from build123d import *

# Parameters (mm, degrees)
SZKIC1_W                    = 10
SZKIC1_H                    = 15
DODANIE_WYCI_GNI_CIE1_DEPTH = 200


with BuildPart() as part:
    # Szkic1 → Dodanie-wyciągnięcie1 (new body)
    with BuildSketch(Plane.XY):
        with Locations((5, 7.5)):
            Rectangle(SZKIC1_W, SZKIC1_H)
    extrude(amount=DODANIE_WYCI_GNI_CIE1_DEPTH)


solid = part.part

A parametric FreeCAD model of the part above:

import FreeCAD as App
import Part
import Sketcher

V = App.Vector
Q = App.Units.Quantity

doc = App.newDocument("Part")
body = doc.addObject("PartDesign::Body", "Body")

sketch1 = body.newObject("Sketcher::SketchObject", "Sketch")
sketch1.AttachmentSupport = (doc.getObject("XY_Plane"), [""])
sketch1.MapMode = "FlatFace"
sketch1.addGeometry(Part.LineSegment(V(0, 15, 0), V(0, 0, 0)), False)
sketch1.addGeometry(Part.LineSegment(V(0, 0, 0), V(10, 0, 0)), False)
sketch1.addGeometry(Part.LineSegment(V(10, 0, 0), V(10, 15, 0)), False)
sketch1.addGeometry(Part.LineSegment(V(10, 15, 0), V(0, 15, 0)), False)
sketch1.addConstraint(Sketcher.Constraint("Coincident", 0, 2, 1, 1))
sketch1.addConstraint(Sketcher.Constraint("Coincident", 1, 2, 2, 1))
sketch1.addConstraint(Sketcher.Constraint("Coincident", 2, 2, 3, 1))
sketch1.addConstraint(Sketcher.Constraint("Coincident", 3, 2, 0, 1))
sketch1.addConstraint(Sketcher.Constraint("Vertical", 0))
sketch1.addConstraint(Sketcher.Constraint("Horizontal", 1))
sketch1.addConstraint(Sketcher.Constraint("Vertical", 2))
sketch1.addConstraint(Sketcher.Constraint("Horizontal", 3))
sketch1.addConstraint(Sketcher.Constraint("Coincident", 0, 2, -1, 1))
sketch1.addConstraint(Sketcher.Constraint("DistanceX", 1, 1, 1, 2, Q("10 mm")))
sketch1.addConstraint(Sketcher.Constraint("DistanceY", 0, 2, 0, 1, Q("15 mm")))
pad1 = body.newObject("PartDesign::Pad", "Pad")
pad1.Profile = sketch1
pad1.Length = 200

doc.recompute()
